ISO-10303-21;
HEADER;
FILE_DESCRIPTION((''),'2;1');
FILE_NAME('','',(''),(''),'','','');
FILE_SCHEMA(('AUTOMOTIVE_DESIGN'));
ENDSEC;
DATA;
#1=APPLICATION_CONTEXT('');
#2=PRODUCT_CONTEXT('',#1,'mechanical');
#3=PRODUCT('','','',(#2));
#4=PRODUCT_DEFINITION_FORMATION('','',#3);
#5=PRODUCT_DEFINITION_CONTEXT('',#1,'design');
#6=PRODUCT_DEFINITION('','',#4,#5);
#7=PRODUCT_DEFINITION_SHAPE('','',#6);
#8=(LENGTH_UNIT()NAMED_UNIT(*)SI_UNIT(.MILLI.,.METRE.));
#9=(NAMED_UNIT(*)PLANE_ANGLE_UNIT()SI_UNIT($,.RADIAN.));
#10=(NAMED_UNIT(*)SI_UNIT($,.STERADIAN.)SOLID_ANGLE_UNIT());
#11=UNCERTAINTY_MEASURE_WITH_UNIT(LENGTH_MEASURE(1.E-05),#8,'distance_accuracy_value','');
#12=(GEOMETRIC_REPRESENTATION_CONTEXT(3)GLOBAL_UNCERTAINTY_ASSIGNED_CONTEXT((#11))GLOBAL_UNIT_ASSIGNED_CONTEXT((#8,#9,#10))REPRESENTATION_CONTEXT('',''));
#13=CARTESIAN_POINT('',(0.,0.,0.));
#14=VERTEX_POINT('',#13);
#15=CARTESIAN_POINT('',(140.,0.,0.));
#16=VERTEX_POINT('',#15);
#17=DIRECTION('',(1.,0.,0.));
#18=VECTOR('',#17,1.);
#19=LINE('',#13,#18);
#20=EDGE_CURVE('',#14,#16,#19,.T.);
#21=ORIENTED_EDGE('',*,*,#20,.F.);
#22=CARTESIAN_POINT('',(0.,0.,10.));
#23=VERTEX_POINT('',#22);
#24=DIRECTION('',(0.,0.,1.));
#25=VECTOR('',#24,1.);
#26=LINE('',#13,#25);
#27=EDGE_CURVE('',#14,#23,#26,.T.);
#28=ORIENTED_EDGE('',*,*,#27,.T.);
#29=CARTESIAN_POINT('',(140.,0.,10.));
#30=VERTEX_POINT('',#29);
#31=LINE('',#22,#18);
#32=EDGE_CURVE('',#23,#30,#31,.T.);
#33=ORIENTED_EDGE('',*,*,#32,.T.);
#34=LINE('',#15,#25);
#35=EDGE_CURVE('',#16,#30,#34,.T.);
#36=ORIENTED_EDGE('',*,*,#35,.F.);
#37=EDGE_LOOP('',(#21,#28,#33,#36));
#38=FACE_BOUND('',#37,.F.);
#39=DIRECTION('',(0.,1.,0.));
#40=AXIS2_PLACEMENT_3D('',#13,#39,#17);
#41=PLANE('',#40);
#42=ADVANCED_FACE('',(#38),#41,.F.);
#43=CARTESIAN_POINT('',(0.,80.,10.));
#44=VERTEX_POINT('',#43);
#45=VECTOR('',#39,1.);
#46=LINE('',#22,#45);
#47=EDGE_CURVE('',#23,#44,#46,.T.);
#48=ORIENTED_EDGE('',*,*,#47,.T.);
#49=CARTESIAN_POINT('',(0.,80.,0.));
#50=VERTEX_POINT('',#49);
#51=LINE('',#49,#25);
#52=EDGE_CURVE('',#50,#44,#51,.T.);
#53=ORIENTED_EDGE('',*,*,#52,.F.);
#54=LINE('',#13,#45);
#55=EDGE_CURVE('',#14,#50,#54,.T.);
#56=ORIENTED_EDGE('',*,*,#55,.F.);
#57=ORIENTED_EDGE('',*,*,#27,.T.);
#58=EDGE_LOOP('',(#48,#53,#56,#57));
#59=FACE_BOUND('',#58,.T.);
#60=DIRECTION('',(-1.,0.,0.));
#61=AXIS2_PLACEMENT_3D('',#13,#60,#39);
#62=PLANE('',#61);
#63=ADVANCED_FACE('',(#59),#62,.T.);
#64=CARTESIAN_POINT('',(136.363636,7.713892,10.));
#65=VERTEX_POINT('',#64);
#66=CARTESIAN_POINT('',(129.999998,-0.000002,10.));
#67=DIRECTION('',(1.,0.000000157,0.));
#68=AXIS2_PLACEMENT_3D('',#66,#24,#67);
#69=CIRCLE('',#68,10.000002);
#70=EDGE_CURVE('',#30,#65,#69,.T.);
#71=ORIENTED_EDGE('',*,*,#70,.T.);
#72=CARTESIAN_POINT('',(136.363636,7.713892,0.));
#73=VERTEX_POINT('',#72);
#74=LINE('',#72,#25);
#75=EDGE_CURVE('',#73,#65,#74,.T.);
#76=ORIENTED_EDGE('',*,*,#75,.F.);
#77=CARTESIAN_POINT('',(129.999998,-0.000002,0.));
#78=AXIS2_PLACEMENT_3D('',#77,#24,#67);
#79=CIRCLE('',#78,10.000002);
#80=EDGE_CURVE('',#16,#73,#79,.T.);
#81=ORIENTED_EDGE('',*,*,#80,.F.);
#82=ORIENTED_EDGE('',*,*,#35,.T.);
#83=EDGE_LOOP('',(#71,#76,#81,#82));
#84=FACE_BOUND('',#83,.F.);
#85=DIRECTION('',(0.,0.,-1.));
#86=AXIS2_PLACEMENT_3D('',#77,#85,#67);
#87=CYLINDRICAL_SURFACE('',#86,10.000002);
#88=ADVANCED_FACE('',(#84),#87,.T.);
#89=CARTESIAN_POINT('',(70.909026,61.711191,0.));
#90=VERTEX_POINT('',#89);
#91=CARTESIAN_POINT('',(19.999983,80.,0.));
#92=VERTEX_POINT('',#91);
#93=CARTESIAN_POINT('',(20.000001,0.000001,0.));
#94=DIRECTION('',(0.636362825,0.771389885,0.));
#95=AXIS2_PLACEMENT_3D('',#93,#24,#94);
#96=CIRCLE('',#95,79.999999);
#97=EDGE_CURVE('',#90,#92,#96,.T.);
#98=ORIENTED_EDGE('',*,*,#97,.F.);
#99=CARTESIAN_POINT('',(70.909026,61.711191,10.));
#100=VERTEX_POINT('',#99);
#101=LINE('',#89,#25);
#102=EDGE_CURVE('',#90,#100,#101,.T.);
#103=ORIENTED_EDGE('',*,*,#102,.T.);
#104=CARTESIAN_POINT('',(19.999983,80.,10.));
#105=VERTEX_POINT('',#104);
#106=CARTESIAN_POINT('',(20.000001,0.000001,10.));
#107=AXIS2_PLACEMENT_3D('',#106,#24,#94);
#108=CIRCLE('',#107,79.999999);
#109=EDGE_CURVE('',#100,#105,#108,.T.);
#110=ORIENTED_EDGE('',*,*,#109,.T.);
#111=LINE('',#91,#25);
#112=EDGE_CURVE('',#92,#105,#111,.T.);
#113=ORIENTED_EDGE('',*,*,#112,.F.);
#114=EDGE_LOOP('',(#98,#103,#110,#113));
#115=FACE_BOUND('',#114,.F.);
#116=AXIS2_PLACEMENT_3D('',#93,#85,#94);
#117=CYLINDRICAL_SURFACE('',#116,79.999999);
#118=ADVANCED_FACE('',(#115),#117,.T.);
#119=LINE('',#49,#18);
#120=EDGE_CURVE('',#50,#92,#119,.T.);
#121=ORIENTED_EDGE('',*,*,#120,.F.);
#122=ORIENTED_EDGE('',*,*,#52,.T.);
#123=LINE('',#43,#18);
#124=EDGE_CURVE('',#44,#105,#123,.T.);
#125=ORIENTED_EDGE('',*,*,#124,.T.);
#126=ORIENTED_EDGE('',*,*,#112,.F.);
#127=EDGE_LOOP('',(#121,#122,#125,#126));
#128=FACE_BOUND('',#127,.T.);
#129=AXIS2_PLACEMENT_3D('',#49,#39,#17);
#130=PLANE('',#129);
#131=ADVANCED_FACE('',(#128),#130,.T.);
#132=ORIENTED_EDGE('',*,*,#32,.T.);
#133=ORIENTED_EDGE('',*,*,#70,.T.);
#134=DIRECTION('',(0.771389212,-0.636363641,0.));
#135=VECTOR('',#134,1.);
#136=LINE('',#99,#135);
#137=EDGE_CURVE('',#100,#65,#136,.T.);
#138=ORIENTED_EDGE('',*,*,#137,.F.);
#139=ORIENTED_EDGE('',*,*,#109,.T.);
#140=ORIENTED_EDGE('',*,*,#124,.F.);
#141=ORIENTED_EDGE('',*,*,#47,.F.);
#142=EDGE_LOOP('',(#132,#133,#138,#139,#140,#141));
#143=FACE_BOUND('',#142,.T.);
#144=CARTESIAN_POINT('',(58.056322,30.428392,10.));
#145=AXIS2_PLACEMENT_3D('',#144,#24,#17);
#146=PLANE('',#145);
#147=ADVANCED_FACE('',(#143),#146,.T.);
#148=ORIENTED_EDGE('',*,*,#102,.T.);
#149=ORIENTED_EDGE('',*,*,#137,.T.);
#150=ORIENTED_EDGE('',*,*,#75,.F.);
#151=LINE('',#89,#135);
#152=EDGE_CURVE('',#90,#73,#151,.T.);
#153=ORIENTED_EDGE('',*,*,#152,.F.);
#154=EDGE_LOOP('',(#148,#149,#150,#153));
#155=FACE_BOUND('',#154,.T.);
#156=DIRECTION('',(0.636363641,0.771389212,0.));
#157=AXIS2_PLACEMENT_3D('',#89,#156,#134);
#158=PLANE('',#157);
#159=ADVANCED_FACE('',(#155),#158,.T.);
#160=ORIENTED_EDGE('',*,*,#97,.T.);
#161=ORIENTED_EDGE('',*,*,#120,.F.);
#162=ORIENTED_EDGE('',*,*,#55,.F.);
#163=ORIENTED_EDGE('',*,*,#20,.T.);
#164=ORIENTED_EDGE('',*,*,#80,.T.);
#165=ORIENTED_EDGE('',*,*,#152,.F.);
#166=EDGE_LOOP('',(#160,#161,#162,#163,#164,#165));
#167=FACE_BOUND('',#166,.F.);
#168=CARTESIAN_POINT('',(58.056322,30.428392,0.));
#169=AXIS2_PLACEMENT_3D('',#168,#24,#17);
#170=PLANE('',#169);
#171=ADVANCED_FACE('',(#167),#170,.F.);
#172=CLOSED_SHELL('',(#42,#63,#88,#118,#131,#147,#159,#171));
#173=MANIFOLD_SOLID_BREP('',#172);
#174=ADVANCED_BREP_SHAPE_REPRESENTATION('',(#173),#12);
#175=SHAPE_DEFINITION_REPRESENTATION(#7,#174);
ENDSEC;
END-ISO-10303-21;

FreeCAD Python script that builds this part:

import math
import FreeCAD as App
import Part
import Sketcher

doc = App.newDocument("Part")
body = doc.addObject("PartDesign::Body", "Body")

# Sketch on XY plane
sketch1 = doc.addObject("Sketcher::SketchObject", "Sketch")
body.addObject(sketch1)
sketch1.AttachmentSupport = (doc.XY_Plane, [""])
sketch1.MapMode = "FlatFace"
sketch1.addGeometry(Part.LineSegment(App.Vector(0, 0, 0), App.Vector(140, 0, 0)), False)
sketch1.addGeometry(Part.ArcOfCircle(Part.Circle(App.Vector(129.999998, -0.000002, 0), App.Vector(0, 0, 1), 10.000002), math.radians(0.000009), math.radians(50.4788)), False)
sketch1.addGeometry(Part.LineSegment(App.Vector(136.363636, 7.713892, 0), App.Vector(70.909026, 61.711191, 0)), False)
sketch1.addGeometry(Part.ArcOfCircle(Part.Circle(App.Vector(20.000001, 0.000001, 0), App.Vector(0, 0, 1), 79.999999), math.radians(50.478864), math.radians(90.000013)), False)
sketch1.addGeometry(Part.LineSegment(App.Vector(19.999983, 80, 0), App.Vector(0, 80, 0)), False)
sketch1.addGeometry(Part.LineSegment(App.Vector(0, 80, 0), App.Vector(0, 0, 0)), False)
sketch1.addConstraint(Sketcher.Constraint("Coincident", 0, 2, 1, 1))
sketch1.addConstraint(Sketcher.Constraint("Coincident", 1, 2, 2, 1))
sketch1.addConstraint(Sketcher.Constraint("Coincident", 2, 2, 3, 1))
sketch1.addConstraint(Sketcher.Constraint("Coincident", 3, 2, 4, 1))
sketch1.addConstraint(Sketcher.Constraint("Coincident", 4, 2, 5, 1))
sketch1.addConstraint(Sketcher.Constraint("Coincident", 5, 2, 0, 1))
sketch1.addConstraint(Sketcher.Constraint("Horizontal", 0))
sketch1.addConstraint(Sketcher.Constraint("Horizontal", 4))
sketch1.addConstraint(Sketcher.Constraint("Vertical", 5))
sketch1.addConstraint(Sketcher.Constraint("Coincident", 5, 2, -1, 1))
sketch1.addConstraint(Sketcher.Constraint("PointOnObject", 1, 3, -1))
sketch1.addConstraint(Sketcher.Constraint("PointOnObject", 3, 3, -1))
sketch1.addConstraint(Sketcher.Constraint("Radius", 3, 79.999999))
sketch1.addConstraint(Sketcher.Constraint("DistanceX", 0, 1, 0, 2, 140.0))
sketch1.addConstraint(Sketcher.Constraint("DistanceX", -1, 1, 3, 3, 20.000001))
sketch1.addConstraint(Sketcher.Constraint("Radius", 1, 10.000002))
sketch1.addConstraint(Sketcher.Constraint("DistanceY", 1, 2, 2, 2, 53.997299))
sketch1.addConstraint(Sketcher.Constraint("DistanceX", 4, 2, 4, 1, 19.999983))
sketch1.addConstraint(Sketcher.Constraint("DistanceY", -1, 1, 2, 2, 61.711191))
pad1 = doc.addObject("PartDesign::Pad", "Pad")
body.addObject(pad1)
pad1.Profile = sketch1
pad1.Length = 10

doc.recompute()
